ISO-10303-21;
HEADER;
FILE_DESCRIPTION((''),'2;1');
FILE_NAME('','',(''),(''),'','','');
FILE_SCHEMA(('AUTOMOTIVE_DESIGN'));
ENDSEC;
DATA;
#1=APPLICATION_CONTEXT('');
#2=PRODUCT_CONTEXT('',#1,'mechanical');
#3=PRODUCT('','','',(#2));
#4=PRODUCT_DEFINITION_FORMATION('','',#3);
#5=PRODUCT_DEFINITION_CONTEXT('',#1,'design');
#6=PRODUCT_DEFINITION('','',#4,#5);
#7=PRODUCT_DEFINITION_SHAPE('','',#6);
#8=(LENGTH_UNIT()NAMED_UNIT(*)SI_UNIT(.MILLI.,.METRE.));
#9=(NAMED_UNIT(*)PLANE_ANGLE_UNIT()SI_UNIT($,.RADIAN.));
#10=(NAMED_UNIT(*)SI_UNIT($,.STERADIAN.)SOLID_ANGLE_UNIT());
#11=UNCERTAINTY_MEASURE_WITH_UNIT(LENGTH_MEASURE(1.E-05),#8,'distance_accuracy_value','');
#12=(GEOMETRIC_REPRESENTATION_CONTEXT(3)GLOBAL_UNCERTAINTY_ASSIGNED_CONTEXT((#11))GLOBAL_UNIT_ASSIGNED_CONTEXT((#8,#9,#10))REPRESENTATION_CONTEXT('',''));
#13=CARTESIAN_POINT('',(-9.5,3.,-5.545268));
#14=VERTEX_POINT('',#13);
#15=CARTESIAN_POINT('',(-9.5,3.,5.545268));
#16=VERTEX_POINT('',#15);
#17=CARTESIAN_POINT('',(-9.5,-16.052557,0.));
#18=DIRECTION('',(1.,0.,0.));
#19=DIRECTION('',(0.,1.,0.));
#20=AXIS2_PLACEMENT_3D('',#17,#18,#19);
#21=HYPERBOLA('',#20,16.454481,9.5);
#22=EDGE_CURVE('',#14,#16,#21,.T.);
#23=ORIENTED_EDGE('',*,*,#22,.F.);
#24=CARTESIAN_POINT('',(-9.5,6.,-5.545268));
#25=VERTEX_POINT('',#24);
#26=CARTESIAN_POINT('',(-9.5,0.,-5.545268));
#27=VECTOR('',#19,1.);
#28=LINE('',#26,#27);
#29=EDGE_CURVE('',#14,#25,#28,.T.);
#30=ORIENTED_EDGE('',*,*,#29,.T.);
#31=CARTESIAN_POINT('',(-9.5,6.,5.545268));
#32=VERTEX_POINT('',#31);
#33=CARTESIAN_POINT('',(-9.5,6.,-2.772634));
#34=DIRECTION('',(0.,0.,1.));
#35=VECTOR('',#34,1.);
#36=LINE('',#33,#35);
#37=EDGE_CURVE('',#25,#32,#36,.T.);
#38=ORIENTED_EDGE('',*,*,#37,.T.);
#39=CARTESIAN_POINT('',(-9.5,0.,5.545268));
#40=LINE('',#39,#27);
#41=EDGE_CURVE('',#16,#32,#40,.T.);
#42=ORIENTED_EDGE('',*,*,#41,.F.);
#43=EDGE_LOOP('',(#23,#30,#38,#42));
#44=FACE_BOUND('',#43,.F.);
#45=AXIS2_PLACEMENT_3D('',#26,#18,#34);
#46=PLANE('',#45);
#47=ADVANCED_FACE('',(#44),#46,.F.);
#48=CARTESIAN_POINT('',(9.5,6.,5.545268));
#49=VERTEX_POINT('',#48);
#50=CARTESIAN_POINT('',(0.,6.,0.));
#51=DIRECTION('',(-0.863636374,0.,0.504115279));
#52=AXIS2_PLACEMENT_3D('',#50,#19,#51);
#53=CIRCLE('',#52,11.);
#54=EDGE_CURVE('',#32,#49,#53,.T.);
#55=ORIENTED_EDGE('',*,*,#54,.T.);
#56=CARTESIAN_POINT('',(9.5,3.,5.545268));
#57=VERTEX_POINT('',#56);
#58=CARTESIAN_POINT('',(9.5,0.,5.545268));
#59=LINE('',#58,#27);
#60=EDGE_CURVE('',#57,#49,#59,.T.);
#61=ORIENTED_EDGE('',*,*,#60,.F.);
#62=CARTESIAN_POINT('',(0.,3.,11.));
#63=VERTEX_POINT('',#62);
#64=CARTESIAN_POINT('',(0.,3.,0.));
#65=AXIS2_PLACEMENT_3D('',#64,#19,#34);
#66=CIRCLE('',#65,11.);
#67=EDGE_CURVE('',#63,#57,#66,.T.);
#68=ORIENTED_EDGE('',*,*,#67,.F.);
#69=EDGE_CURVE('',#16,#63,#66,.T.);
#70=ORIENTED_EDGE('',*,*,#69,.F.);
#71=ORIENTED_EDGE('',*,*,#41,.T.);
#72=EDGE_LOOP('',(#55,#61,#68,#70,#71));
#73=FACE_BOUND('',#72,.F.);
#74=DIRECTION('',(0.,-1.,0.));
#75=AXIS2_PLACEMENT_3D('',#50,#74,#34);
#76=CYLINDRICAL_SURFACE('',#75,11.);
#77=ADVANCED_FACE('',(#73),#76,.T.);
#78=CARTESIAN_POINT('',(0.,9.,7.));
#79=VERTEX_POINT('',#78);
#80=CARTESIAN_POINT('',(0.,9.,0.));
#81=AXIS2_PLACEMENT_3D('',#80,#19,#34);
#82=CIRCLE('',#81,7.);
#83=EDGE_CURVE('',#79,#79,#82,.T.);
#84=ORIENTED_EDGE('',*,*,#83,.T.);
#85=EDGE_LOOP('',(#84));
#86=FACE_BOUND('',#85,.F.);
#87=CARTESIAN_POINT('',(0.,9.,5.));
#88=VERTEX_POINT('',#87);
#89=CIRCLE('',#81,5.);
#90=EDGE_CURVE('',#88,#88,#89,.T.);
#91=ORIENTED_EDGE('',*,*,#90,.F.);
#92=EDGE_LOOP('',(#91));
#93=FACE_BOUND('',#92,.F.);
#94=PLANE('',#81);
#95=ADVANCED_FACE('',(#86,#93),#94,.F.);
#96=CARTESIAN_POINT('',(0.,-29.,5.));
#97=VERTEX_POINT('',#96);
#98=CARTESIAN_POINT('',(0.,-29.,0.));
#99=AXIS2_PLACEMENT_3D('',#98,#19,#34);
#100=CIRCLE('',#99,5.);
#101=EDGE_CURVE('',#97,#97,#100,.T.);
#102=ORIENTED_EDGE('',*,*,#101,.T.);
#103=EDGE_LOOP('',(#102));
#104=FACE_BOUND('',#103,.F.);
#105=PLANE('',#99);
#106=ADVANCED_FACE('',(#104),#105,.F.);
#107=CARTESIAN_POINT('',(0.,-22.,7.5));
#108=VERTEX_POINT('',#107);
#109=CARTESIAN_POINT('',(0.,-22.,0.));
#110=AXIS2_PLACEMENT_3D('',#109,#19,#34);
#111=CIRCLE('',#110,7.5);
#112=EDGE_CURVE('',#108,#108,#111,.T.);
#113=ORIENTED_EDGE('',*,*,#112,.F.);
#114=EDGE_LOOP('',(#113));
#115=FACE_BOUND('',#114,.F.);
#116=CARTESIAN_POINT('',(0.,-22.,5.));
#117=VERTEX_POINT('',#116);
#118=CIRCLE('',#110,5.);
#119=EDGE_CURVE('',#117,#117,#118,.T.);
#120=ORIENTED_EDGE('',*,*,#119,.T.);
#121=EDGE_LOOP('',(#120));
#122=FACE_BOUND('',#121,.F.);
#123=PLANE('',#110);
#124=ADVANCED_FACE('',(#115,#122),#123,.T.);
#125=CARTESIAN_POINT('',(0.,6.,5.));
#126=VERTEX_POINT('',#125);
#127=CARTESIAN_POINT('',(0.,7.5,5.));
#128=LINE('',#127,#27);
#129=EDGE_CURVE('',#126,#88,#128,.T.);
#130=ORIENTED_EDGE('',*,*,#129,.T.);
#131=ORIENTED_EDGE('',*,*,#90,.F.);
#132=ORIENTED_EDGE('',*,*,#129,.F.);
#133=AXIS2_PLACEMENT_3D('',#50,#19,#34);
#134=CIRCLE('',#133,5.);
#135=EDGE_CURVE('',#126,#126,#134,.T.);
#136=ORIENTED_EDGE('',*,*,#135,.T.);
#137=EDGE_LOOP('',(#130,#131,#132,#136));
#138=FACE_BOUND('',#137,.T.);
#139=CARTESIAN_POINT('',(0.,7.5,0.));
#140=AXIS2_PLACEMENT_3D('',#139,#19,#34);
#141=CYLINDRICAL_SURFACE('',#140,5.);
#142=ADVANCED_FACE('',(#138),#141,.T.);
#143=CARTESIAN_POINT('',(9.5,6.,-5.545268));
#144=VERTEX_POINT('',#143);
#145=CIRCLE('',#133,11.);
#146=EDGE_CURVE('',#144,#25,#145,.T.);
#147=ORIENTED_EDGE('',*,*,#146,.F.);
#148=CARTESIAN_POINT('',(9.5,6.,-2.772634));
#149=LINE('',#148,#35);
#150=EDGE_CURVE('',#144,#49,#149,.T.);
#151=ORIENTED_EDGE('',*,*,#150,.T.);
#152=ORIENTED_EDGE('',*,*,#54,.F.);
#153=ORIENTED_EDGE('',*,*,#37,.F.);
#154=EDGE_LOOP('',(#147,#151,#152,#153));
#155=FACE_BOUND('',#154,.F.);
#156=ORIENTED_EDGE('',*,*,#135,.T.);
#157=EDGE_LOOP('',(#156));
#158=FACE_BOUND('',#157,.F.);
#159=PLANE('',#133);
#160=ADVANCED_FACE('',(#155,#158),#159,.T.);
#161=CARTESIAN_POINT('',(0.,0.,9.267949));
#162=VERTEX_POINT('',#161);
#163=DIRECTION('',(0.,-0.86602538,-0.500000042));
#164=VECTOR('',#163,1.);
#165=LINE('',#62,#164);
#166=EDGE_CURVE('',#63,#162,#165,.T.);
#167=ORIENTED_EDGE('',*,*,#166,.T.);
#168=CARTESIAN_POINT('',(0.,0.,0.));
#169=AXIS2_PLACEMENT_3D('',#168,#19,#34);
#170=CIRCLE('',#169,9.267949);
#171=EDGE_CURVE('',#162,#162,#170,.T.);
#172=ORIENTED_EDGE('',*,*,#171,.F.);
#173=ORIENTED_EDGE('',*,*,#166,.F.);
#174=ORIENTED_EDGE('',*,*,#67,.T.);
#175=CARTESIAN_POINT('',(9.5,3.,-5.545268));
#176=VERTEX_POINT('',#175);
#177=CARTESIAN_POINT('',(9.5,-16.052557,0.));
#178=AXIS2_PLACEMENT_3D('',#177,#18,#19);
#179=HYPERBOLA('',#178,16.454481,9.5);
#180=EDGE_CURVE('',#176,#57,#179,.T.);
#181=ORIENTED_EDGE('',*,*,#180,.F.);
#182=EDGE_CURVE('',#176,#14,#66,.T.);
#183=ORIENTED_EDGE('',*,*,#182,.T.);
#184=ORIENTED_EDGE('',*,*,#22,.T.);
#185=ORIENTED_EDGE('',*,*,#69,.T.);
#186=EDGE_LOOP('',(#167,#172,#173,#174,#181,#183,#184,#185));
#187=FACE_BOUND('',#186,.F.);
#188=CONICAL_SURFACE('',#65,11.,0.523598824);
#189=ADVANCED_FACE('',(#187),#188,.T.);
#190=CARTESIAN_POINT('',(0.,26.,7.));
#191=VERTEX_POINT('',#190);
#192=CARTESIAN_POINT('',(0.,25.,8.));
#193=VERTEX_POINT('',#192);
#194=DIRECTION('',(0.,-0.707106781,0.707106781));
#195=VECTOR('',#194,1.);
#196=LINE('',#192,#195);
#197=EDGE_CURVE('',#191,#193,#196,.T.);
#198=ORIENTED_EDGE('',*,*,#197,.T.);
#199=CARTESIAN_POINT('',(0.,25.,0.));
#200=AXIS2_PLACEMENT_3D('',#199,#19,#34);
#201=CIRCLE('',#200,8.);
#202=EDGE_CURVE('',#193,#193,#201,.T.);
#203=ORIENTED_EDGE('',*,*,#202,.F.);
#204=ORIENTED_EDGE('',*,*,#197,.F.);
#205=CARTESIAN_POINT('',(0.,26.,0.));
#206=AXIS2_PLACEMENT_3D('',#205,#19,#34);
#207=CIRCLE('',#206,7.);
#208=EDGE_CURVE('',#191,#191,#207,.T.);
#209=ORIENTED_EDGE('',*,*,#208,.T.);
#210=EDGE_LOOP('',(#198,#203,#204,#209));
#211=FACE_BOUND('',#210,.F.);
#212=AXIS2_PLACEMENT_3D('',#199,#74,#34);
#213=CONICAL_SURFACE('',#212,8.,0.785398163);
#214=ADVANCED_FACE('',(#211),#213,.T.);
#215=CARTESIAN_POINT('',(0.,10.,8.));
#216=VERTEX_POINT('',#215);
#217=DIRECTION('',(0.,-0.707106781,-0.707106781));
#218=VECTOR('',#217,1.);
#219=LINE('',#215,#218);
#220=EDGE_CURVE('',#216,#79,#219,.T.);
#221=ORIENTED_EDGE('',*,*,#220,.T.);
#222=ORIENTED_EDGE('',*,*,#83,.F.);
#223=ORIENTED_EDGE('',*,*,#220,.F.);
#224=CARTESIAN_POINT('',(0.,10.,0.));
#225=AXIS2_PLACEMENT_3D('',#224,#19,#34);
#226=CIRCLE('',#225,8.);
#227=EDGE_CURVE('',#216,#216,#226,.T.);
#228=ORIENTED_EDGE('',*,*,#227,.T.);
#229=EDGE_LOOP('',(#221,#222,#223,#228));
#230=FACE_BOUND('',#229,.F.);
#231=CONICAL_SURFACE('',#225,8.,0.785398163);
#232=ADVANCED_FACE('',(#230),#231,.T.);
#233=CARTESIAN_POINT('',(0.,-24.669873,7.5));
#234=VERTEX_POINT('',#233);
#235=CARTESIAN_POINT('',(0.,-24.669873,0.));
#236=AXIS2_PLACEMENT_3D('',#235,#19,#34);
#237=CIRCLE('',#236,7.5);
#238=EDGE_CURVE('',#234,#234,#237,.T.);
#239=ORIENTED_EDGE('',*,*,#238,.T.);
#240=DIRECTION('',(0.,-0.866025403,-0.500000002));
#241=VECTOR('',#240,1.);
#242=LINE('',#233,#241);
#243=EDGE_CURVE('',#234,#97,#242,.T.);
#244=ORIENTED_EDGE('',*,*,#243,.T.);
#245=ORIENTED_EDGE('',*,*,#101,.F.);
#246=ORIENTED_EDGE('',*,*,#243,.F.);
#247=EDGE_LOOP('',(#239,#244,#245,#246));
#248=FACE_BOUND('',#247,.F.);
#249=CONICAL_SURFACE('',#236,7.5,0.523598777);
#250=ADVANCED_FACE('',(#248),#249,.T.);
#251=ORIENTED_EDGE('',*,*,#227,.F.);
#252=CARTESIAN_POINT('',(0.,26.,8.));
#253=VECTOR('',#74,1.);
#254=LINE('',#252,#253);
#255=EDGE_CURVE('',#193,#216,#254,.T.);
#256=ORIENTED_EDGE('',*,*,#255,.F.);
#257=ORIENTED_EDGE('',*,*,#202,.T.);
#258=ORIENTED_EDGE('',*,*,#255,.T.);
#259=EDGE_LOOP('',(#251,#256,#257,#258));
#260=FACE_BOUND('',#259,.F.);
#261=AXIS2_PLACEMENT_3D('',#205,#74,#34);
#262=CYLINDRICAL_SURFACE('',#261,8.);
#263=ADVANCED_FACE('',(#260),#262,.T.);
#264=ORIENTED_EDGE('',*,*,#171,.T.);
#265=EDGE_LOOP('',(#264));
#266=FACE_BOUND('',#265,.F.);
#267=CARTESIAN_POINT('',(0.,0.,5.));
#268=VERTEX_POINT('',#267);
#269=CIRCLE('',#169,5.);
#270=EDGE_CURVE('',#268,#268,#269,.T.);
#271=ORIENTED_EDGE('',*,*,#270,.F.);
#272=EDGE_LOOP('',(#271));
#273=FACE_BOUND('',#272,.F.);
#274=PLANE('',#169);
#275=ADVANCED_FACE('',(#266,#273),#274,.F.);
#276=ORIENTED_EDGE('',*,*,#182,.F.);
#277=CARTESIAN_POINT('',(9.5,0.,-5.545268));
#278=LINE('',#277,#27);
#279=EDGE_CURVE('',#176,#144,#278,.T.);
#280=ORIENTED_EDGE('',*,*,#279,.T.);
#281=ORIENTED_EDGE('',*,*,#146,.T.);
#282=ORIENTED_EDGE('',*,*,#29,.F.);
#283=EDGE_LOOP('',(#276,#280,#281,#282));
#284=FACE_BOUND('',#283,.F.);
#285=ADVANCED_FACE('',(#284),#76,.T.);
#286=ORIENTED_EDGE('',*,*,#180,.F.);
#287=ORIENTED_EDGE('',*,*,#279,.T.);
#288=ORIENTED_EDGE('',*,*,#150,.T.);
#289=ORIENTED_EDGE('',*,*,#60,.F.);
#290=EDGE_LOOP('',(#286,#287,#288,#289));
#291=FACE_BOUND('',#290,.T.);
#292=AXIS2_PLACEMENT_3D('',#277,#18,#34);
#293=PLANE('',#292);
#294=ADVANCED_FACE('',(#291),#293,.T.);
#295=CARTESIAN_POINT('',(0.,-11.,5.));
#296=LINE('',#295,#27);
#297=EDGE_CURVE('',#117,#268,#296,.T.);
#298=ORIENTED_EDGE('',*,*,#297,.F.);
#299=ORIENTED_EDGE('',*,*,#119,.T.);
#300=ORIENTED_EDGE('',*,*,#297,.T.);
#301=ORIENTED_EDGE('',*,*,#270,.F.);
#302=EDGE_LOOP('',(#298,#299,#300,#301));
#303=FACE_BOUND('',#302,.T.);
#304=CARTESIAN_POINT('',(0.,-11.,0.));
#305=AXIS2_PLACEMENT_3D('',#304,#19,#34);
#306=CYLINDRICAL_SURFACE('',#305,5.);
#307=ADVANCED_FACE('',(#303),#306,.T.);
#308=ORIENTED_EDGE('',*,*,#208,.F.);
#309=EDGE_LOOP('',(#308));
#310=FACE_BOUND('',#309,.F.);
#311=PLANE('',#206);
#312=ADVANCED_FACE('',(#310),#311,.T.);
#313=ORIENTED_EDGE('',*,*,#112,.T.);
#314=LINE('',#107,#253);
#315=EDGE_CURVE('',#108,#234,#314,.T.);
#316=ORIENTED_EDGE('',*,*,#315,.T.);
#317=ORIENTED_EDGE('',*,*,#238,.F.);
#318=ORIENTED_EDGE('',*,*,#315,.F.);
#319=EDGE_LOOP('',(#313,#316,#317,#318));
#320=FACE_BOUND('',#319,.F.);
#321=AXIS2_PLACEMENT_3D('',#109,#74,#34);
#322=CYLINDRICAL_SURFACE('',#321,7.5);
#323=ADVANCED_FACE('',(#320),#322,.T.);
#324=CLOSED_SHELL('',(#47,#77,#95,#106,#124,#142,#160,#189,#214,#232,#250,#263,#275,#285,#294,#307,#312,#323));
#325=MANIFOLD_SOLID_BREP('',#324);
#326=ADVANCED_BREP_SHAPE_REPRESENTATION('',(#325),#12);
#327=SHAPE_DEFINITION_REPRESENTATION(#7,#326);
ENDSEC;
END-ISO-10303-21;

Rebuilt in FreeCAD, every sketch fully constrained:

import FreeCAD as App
import Part
import Sketcher
Q = App.Units.Quantity


def edges_at(feature, points):
    """Names of the edges that pass closest to the given points."""
    edges = feature.Shape.Edges
    near = lambda p: min(range(len(edges)), key=lambda i: edges[i].distToShape(Part.Vertex(*p))[0])
    return sorted({f"Edge{near(p) + 1}" for p in points})


def add_polygon(sketch, points):
    """Adds a closed chain of lines whose ends are joined by coincident constraints."""
    first, n = sketch.GeometryCount, len(points)
    for a, b in zip(points, points[1:] + points[:1]):
        sketch.addGeometry(Part.LineSegment(App.Vector(*a, 0), App.Vector(*b, 0)), False)
    for i in range(n):
        sketch.addConstraint(Sketcher.Constraint("Coincident", first + i, 2, first + (i + 1) % n, 1))

doc = App.newDocument("Part")
params = doc.addObject("Spreadsheet::Sheet", "Params")
for row, (alias, value) in enumerate([
    ("sketch1_width", "22 mm"),
    ("sketch1_width2", "55 mm"),
    ("sketch1_width3", "17 mm"),
    ("sketch1_width4", "3 mm"),
    ("sketch1_height", "5 mm"),
    ("revolution_angle", "360 deg"),
    ("chamfer_size", "1 mm"),
    ("sketch2_width", "3 mm"),
    ("pocket1_length", "27.256256 mm"),
], start=1):
    params.set(f"A{row}", alias)
    params.set(f"B{row}", "=" + value)
    params.setAlias(f"B{row}", alias)

body = doc.addObject("PartDesign::Body", "Body")

# Sketch on YZ plane
sketch1 = body.newObject("Sketcher::SketchObject", "Sketch")
sketch1.AttachmentSupport = (doc.getObject("YZ_Plane"), [""])
sketch1.MapMode = "FlatFace"
add_polygon(sketch1, [(3, 11), (0, 9.3), (0, 5), (-22, 5), (-22, 7.5), (-24.7, 7.5), (-29, 5), (-29, 0), (26, 0), (26, 8), (9, 8), (9, 5), (6, 5), (6, 11)])  # lines 0-13
sketch1.addConstraint(Sketcher.Constraint("Vertical", 1))
sketch1.addConstraint(Sketcher.Constraint("Horizontal", 2))
sketch1.addConstraint(Sketcher.Constraint("Vertical", 3))
sketch1.addConstraint(Sketcher.Constraint("Horizontal", 4))
sketch1.addConstraint(Sketcher.Constraint("Vertical", 6))
sketch1.addConstraint(Sketcher.Constraint("Horizontal", 7))
sketch1.addConstraint(Sketcher.Constraint("Vertical", 8))
sketch1.addConstraint(Sketcher.Constraint("Horizontal", 9))
sketch1.addConstraint(Sketcher.Constraint("Vertical", 10))
sketch1.addConstraint(Sketcher.Constraint("Horizontal", 11))
sketch1.addConstraint(Sketcher.Constraint("Vertical", 12))
sketch1.addConstraint(Sketcher.Constraint("Horizontal", 13))
sketch1.addConstraint(Sketcher.Constraint("PointOnObject", 0, 2, -2))
sketch1.addConstraint(Sketcher.Constraint("PointOnObject", 6, 2, -1))
sketch1.addConstraint(Sketcher.Constraint("Parallel", 0, 5))
sketch1.addConstraint(Sketcher.Constraint("Horizontal", 2, 2, 5, 2))
sketch1.addConstraint(Sketcher.Constraint("Horizontal", 5, 2, 10, 2))
sketch1.addConstraint(Sketcher.Constraint("Equal", 11, 13))
sketch1.addConstraint(Sketcher.Constraint("Equal", 13, 10))
sketch1.addConstraint(Sketcher.Constraint("DistanceX", 2, 2, 2, 1, Q("22 mm")))
sketch1.addConstraint(Sketcher.Constraint("DistanceX", 7, 1, 7, 2, Q("55 mm")))
sketch1.addConstraint(Sketcher.Constraint("DistanceX", 9, 2, 9, 1, Q("17 mm")))
sketch1.addConstraint(Sketcher.Constraint("DistanceX", 11, 2, 11, 1, Q("3 mm")))
sketch1.addConstraint(Sketcher.Constraint("DistanceY", 6, 2, 6, 1, Q("5 mm")))
sketch1.addConstraint(Sketcher.Constraint("DistanceY", 12, 1, 12, 2, Q("6 mm")))
sketch1.addConstraint(Sketcher.Constraint("Angle", 0, Q("-149.999997 deg")))
sketch1.addConstraint(Sketcher.Constraint("Distance", 5, Q("5 mm")))
sketch1.addConstraint(Sketcher.Constraint("DistanceX", 5, 2, -1, 1, Q("29 mm")))
sketch1.setExpression("Constraints[33]", "Params.sketch1_width")
sketch1.setExpression("Constraints[34]", "Params.sketch1_width2")
sketch1.setExpression("Constraints[35]", "Params.sketch1_width3")
sketch1.setExpression("Constraints[36]", "Params.sketch1_width4")
sketch1.setExpression("Constraints[37]", "Params.sketch1_height")
revolution = body.newObject("PartDesign::Revolution", "Revolution")
revolution.Profile = sketch1
revolution.ReferenceAxis = (sketch1, ["H_Axis"])
revolution.setExpression("Angle", "Params.revolution_angle")
doc.recompute()

chamfer = body.newObject("PartDesign::Chamfer", "Chamfer")
chamfer.Base = (revolution, edges_at(revolution, [(0, 9, -8), (0, 26, -8)]))
chamfer.setExpression("Size", "Params.chamfer_size")

# Sketch on XZ plane
sketch2 = body.newObject("Sketcher::SketchObject", "Sketch001")
sketch2.AttachmentSupport = (doc.getObject("XZ_Plane"), [""])
sketch2.MapMode = "FlatFace"
add_polygon(sketch2, [(9.5, 5.5), (9.5, -5.5), (12.5, -5.5), (12.5, 5.5)])  # lines 0-3
add_polygon(sketch2, [(-12.5, 5.5), (-12.5, -5.5), (-9.5, -5.5), (-9.5, 5.5)])  # lines 4-7
sketch2.addConstraint(Sketcher.Constraint("Vertical", 0))
sketch2.addConstraint(Sketcher.Constraint("Horizontal", 1))
sketch2.addConstraint(Sketcher.Constraint("Vertical", 2))
sketch2.addConstraint(Sketcher.Constraint("Horizontal", 3))
sketch2.addConstraint(Sketcher.Constraint("Vertical", 4))
sketch2.addConstraint(Sketcher.Constraint("Horizontal", 5))
sketch2.addConstraint(Sketcher.Constraint("Vertical", 6))
sketch2.addConstraint(Sketcher.Constraint("Horizontal", 7))
sketch2.addConstraint(Sketcher.Constraint("Symmetric", 2, 2, 4, 2, -1, 1))
sketch2.addConstraint(Sketcher.Constraint("Symmetric", 0, 2, 6, 2, -1, 1))
sketch2.addConstraint(Sketcher.Constraint("Horizontal", 1, 2, 4, 2))
sketch2.addConstraint(Sketcher.Constraint("DistanceX", 1, 1, 1, 2, Q("3 mm")))
sketch2.addConstraint(Sketcher.Constraint("DistanceX", 4, 2, 0, 2, Q("22 mm")))
sketch2.addConstraint(Sketcher.Constraint("DistanceY", 0, 2, 0, 1, Q("11.090536 mm")))
sketch2.setExpression("Constraints[19]", "Params.sketch2_width")
pocket1 = body.newObject("PartDesign::Pocket", "Pocket")
pocket1.Profile = sketch2
pocket1.setExpression("Length", "Params.pocket1_length")

doc.recompute()
